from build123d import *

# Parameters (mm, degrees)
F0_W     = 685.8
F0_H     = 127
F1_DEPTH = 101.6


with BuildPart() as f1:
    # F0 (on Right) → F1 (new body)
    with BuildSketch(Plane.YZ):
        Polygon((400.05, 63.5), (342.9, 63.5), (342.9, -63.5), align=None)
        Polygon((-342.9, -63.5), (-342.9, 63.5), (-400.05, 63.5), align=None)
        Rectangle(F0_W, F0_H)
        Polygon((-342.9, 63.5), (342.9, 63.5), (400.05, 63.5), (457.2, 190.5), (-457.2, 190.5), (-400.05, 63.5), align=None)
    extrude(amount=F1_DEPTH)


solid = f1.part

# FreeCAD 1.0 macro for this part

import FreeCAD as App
import Part
import Sketcher

V = App.Vector
Q = App.Units.Quantity

doc = App.newDocument("Part")
params = doc.addObject("Spreadsheet::Sheet", "Params")
for row, (alias, value) in enumerate([
    ("sketch1_width", "27 in"),
    ("sketch1_width2", "36 in"),
    ("pad1_length", "4 in"),
], start=1):
    params.set(f"A{row}", alias)
    params.set(f"B{row}", "=" + value)
    params.setAlias(f"B{row}", alias)

body = doc.addObject("PartDesign::Body", "Body")

# Sketch on YZ plane
sketch1 = body.newObject("Sketcher::SketchObject", "Sketch")
sketch1.AttachmentSupport = (doc.getObject("YZ_Plane"), [""])
sketch1.MapMode = "FlatFace"
sketch1.addGeometry([
    Part.LineSegment(V(-343, -64, 0), V(343, -64, 0)),
    Part.LineSegment(V(343, -64, 0), V(457, 190, 0)),
    Part.LineSegment(V(457, 190, 0), V(-457, 190, 0)),
    Part.LineSegment(V(-457, 190, 0), V(-343, -64, 0)),
], False)
sketch1.addConstraint([
    Sketcher.Constraint("Coincident", 0, 2, 1, 1),
    Sketcher.Constraint("Coincident", 1, 2, 2, 1),
    Sketcher.Constraint("Coincident", 2, 2, 3, 1),
    Sketcher.Constraint("Coincident", 3, 2, 0, 1),
    Sketcher.Constraint("Horizontal", 0),
    Sketcher.Constraint("Horizontal", 2),
    Sketcher.Constraint("Equal", 1, 3),
    Sketcher.Constraint("DistanceX", 0, 1, 0, 2, Q("27 in")),
    Sketcher.Constraint("DistanceX", 2, 2, 2, 1, Q("36 in")),
    Sketcher.Constraint("DistanceX", -1, 1, 1, 2, Q("18 in")),
    Sketcher.Constraint("DistanceY", 0, 2, 1, 2, Q("10 in")),
    Sketcher.Constraint("DistanceY", 0, 2, -1, 1, Q("2.5 in")),
])
sketch1.setExpression("Constraints[7]", "Params.sketch1_width")
sketch1.setExpression("Constraints[8]", "Params.sketch1_width2")
pad1 = body.newObject("PartDesign::Pad", "Pad")
pad1.Profile = sketch1
pad1.setExpression("Length", "Params.pad1_length")

doc.recompute()
